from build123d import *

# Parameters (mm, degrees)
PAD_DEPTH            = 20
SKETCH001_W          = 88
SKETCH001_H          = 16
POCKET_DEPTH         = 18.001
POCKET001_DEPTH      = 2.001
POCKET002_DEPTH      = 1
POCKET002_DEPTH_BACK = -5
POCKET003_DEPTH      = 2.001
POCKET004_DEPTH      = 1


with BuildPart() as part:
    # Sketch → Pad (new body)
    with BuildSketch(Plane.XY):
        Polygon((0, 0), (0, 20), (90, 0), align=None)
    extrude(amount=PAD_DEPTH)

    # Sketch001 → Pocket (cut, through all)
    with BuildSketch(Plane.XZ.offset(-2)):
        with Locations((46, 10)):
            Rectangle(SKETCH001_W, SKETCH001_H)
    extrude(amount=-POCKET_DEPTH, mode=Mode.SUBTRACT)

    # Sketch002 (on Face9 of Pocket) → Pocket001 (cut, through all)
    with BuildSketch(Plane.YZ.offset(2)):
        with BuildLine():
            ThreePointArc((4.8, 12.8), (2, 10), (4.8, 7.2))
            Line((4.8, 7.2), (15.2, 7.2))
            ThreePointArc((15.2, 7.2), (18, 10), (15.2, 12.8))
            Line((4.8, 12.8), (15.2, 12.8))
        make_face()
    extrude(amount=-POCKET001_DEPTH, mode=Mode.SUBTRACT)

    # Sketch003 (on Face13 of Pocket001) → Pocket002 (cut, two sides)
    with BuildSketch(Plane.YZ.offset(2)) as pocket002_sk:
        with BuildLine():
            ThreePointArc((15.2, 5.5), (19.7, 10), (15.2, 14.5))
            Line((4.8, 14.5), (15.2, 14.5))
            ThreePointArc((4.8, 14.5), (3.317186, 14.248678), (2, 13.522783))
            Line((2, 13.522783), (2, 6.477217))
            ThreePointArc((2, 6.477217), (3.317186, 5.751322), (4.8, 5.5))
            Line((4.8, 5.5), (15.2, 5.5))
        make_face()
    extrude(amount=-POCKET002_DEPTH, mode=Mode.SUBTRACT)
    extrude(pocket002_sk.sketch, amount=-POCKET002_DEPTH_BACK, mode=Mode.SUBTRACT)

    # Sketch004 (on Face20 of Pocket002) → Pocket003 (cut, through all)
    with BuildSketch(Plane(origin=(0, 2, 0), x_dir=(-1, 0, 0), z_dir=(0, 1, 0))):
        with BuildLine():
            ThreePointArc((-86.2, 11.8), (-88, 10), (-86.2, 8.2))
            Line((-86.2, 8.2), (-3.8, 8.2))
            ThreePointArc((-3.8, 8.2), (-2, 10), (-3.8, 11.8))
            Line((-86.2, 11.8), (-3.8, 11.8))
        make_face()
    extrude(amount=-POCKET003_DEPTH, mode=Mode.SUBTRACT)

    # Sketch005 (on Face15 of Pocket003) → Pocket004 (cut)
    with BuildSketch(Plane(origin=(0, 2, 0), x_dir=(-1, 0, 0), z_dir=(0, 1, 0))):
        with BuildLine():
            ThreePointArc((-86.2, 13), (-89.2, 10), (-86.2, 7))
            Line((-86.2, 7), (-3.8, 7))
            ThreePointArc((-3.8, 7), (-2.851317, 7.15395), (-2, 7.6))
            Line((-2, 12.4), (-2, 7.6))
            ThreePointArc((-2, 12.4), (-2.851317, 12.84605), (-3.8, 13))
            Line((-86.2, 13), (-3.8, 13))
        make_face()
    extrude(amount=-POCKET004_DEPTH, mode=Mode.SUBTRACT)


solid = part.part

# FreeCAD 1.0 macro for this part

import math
import FreeCAD as App
import Part
import Sketcher
Q = App.Units.Quantity


def add_polygon(sketch, points):
    """Adds a closed chain of lines whose ends are joined by coincident constraints."""
    first, n = sketch.GeometryCount, len(points)
    for a, b in zip(points, points[1:] + points[:1]):
        sketch.addGeometry(Part.LineSegment(App.Vector(*a, 0), App.Vector(*b, 0)), False)
    for i in range(n):
        sketch.addConstraint(Sketcher.Constraint("Coincident", first + i, 2, first + (i + 1) % n, 1))

doc = App.newDocument("Part")
body = doc.addObject("PartDesign::Body", "Body")

sketch1 = body.newObject("Sketcher::SketchObject", "Sketch")
sketch1.AttachmentSupport = (doc.getObject("XY_Plane"), [""])
sketch1.MapMode = "FlatFace"
add_polygon(sketch1, [(0, 20), (0, 0), (90, 0)])
sketch1.addConstraint([
    Sketcher.Constraint("Vertical", 0),
    Sketcher.Constraint("Horizontal", 1),
    Sketcher.Constraint("Coincident", 0, 2, -1, 1),
    Sketcher.Constraint("DistanceX", 1, 1, 1, 2, Q("90 mm")),
    Sketcher.Constraint("DistanceY", 0, 2, 0, 1, Q("20 mm")),
])
pad1 = body.newObject("PartDesign::Pad", "Pad")
pad1.Profile = sketch1
pad1.Length = 20

sketch2 = body.newObject("Sketcher::SketchObject", "Sketch001")
sketch2.AttachmentSupport = (doc.getObject("XZ_Plane"), [""])
sketch2.MapMode = "FlatFace"
sketch2.AttachmentOffset = App.Placement(App.Vector(0, 0, -2), App.Rotation())
add_polygon(sketch2, [(2, 18), (2, 2), (90, 2), (90, 18)])
sketch2.addConstraint([
    Sketcher.Constraint("Vertical", 0),
    Sketcher.Constraint("Horizontal", 1),
    Sketcher.Constraint("Vertical", 2),
    Sketcher.Constraint("Horizontal", 3),
    Sketcher.Constraint("DistanceX", 1, 1, 1, 2, Q("88 mm")),
    Sketcher.Constraint("DistanceY", 0, 2, 0, 1, Q("16 mm")),
    Sketcher.Constraint("DistanceX", -1, 1, 0, 2, Q("2 mm")),
    Sketcher.Constraint("DistanceY", -1, 1, 0, 2, Q("2 mm")),
])
pocket1 = body.newObject("PartDesign::Pocket", "Pocket")
pocket1.Profile = sketch2
pocket1.Type = "ThroughAll"

sketch3 = body.newObject("Sketcher::SketchObject", "Sketch002")
sketch3.AttachmentSupport = (doc.getObject("YZ_Plane"), [""])
sketch3.MapMode = "FlatFace"
sketch3.AttachmentOffset = App.Placement(App.Vector(0, 0, 2), App.Rotation())
sketch3.addGeometry([
    Part.ArcOfCircle(Part.Circle(App.Vector(4.8, 10, 0), App.Vector(0, 0, 1), 2.8), math.radians(90), math.radians(270)),
    Part.LineSegment(App.Vector(4.8, 7.2, 0), App.Vector(15.2, 7.2, 0)),
    Part.ArcOfCircle(Part.Circle(App.Vector(15.2, 10, 0), App.Vector(0, 0, 1), 2.8), math.radians(-90), math.radians(90)),
    Part.LineSegment(App.Vector(15.2, 12.8, 0), App.Vector(4.8, 12.8, 0)),
], False)
sketch3.addConstraint([
    Sketcher.Constraint("Tangent", 0, 2, 1, 1),
    Sketcher.Constraint("Tangent", 1, 2, 2, 1),
    Sketcher.Constraint("Tangent", 2, 2, 3, 1),
    Sketcher.Constraint("Tangent", 3, 2, 0, 1),
    Sketcher.Constraint("Horizontal", 1),
    Sketcher.Constraint("Horizontal", 3),
    Sketcher.Constraint("Radius", 0, Q("2.8 mm")),
    Sketcher.Constraint("DistanceX", 1, 1, 1, 2, Q("10.4 mm")),
    Sketcher.Constraint("DistanceY", -1, 1, 0, 3, Q("10 mm")),
    Sketcher.Constraint("DistanceX", -1, 1, 0, 3, Q("4.8 mm")),
])
pocket2 = body.newObject("PartDesign::Pocket", "Pocket001")
pocket2.Profile = sketch3
pocket2.Type = "ThroughAll"

sketch4 = body.newObject("Sketcher::SketchObject", "Sketch003")
sketch4.AttachmentSupport = (doc.getObject("YZ_Plane"), [""])
sketch4.MapMode = "FlatFace"
sketch4.AttachmentOffset = App.Placement(App.Vector(0, 0, 2), App.Rotation())
sketch4.addGeometry([
    Part.ArcOfCircle(Part.Circle(App.Vector(15.2, 10, 0), App.Vector(0, 0, 1), 4.5), math.radians(-90), math.radians(90)),
    Part.LineSegment(App.Vector(15.2, 14.5, 0), App.Vector(4.8, 14.5, 0)),
    Part.ArcOfCircle(Part.Circle(App.Vector(4.8, 10, 0), App.Vector(0, 0, 1), 4.5), math.radians(90), math.radians(128)),
    Part.LineSegment(App.Vector(2, 13.5, 0), App.Vector(2, 6.5, 0)),
    Part.ArcOfCircle(Part.Circle(App.Vector(4.8, 10, 0), App.Vector(0, 0, 1), 4.5), math.radians(-128), math.radians(-90)),
    Part.LineSegment(App.Vector(4.8, 5.5, 0), App.Vector(15.2, 5.5, 0)),
], False)
sketch4.addConstraint([
    Sketcher.Constraint("Tangent", 0, 2, 1, 1),
    Sketcher.Constraint("Tangent", 1, 2, 2, 1),
    Sketcher.Constraint("Coincident", 2, 2, 3, 1),
    Sketcher.Constraint("Coincident", 3, 2, 4, 1),
    Sketcher.Constraint("Tangent", 4, 2, 5, 1),
    Sketcher.Constraint("Tangent", 5, 2, 0, 1),
    Sketcher.Constraint("Horizontal", 1),
    Sketcher.Constraint("Vertical", 3),
    Sketcher.Constraint("Horizontal", 5),
    Sketcher.Constraint("Coincident", 4, 3, 2, 3),
    Sketcher.Constraint("Equal", 2, 4),
    Sketcher.Constraint("Radius", 0, Q("4.5 mm")),
    Sketcher.Constraint("DistanceX", 1, 2, 1, 1, Q("10.4 mm")),
    Sketcher.Constraint("DistanceY", -1, 1, 0, 3, Q("10 mm")),
    Sketcher.Constraint("DistanceX", -1, 1, 2, 2, Q("2 mm")),
    Sketcher.Constraint("DistanceX", -1, 1, 0, 3, Q("15.2 mm")),
])
pocket3 = body.newObject("PartDesign::Pocket", "Pocket002")
pocket3.Profile = sketch4
pocket3.Type = "TwoLengths"
pocket3.Length = 1
pocket3.Length2 = 5

sketch5 = body.newObject("Sketcher::SketchObject", "Sketch004")
sketch5.AttachmentSupport = (doc.getObject("XZ_Plane"), [""])
sketch5.MapMode = "FlatFace"
sketch5.AttachmentOffset = App.Placement(App.Vector(0, 0, -2), App.Rotation())
sketch5.addGeometry([
    Part.ArcOfCircle(Part.Circle(App.Vector(86.2, 10, 0), App.Vector(0, 0, 1), 1.8), math.radians(-90), math.radians(90)),
    Part.LineSegment(App.Vector(86.2, 8.2, 0), App.Vector(3.8, 8.2, 0)),
    Part.ArcOfCircle(Part.Circle(App.Vector(3.8, 10, 0), App.Vector(0, 0, 1), 1.8), math.radians(90), math.radians(270)),
    Part.LineSegment(App.Vector(3.8, 11.8, 0), App.Vector(86.2, 11.8, 0)),
], False)
sketch5.addConstraint([
    Sketcher.Constraint("Tangent", 0, 1, 1, 1),
    Sketcher.Constraint("Tangent", 1, 2, 2, 2),
    Sketcher.Constraint("Tangent", 2, 1, 3, 1),
    Sketcher.Constraint("Tangent", 3, 2, 0, 2),
    Sketcher.Constraint("Horizontal", 1),
    Sketcher.Constraint("Horizontal", 3),
    Sketcher.Constraint("Radius", 0, Q("1.8 mm")),
    Sketcher.Constraint("DistanceX", 1, 2, 1, 1, Q("82.4 mm")),
    Sketcher.Constraint("DistanceY", -1, 1, 0, 3, Q("10 mm")),
    Sketcher.Constraint("DistanceX", -1, 1, 0, 3, Q("86.2 mm")),
])
pocket4 = body.newObject("PartDesign::Pocket", "Pocket003")
pocket4.Profile = sketch5
pocket4.Type = "ThroughAll"
pocket4.Reversed = True

sketch6 = body.newObject("Sketcher::SketchObject", "Sketch005")
sketch6.AttachmentSupport = (doc.getObject("XZ_Plane"), [""])
sketch6.MapMode = "FlatFace"
sketch6.AttachmentOffset = App.Placement(App.Vector(0, 0, -2), App.Rotation())
sketch6.addGeometry([
    Part.ArcOfCircle(Part.Circle(App.Vector(86.2, 10, 0), App.Vector(0, 0, 1), 3), math.radians(-90), math.radians(90)),
    Part.LineSegment(App.Vector(86.2, 7, 0), App.Vector(3.8, 7, 0)),
    Part.ArcOfCircle(Part.Circle(App.Vector(3.8, 10, 0), App.Vector(0, 0, 1), 3), math.radians(-127), math.radians(-90)),
    Part.LineSegment(App.Vector(2, 7.6, 0), App.Vector(2, 12.4, 0)),
    Part.ArcOfCircle(Part.Circle(App.Vector(3.8, 10, 0), App.Vector(0, 0, 1), 3), math.radians(90), math.radians(127)),
    Part.LineSegment(App.Vector(3.8, 13, 0), App.Vector(86.2, 13, 0)),
], False)
sketch6.addConstraint([
    Sketcher.Constraint("Tangent", 0, 1, 1, 1),
    Sketcher.Constraint("Tangent", 1, 2, 2, 2),
    Sketcher.Constraint("Coincident", 2, 1, 3, 1),
    Sketcher.Constraint("Coincident", 3, 2, 4, 2),
    Sketcher.Constraint("Tangent", 4, 1, 5, 1),
    Sketcher.Constraint("Tangent", 5, 2, 0, 2),
    Sketcher.Constraint("Horizontal", 1),
    Sketcher.Constraint("Vertical", 3),
    Sketcher.Constraint("Horizontal", 5),
    Sketcher.Constraint("Coincident", 4, 3, 2, 3),
    Sketcher.Constraint("Equal", 0, 2),
    Sketcher.Constraint("Radius", 0, Q("3 mm")),
    Sketcher.Constraint("DistanceX", 1, 2, 1, 1, Q("82.4 mm")),
    Sketcher.Constraint("DistanceY", 3, 1, 3, 2, Q("4.8 mm")),
    Sketcher.Constraint("DistanceY", -1, 1, 0, 3, Q("10 mm")),
    Sketcher.Constraint("DistanceX", -1, 1, 2, 1, Q("2 mm")),
])
pocket5 = body.newObject("PartDesign::Pocket", "Pocket004")
pocket5.Profile = sketch6
pocket5.Length = 1
pocket5.Reversed = True

doc.recompute()
